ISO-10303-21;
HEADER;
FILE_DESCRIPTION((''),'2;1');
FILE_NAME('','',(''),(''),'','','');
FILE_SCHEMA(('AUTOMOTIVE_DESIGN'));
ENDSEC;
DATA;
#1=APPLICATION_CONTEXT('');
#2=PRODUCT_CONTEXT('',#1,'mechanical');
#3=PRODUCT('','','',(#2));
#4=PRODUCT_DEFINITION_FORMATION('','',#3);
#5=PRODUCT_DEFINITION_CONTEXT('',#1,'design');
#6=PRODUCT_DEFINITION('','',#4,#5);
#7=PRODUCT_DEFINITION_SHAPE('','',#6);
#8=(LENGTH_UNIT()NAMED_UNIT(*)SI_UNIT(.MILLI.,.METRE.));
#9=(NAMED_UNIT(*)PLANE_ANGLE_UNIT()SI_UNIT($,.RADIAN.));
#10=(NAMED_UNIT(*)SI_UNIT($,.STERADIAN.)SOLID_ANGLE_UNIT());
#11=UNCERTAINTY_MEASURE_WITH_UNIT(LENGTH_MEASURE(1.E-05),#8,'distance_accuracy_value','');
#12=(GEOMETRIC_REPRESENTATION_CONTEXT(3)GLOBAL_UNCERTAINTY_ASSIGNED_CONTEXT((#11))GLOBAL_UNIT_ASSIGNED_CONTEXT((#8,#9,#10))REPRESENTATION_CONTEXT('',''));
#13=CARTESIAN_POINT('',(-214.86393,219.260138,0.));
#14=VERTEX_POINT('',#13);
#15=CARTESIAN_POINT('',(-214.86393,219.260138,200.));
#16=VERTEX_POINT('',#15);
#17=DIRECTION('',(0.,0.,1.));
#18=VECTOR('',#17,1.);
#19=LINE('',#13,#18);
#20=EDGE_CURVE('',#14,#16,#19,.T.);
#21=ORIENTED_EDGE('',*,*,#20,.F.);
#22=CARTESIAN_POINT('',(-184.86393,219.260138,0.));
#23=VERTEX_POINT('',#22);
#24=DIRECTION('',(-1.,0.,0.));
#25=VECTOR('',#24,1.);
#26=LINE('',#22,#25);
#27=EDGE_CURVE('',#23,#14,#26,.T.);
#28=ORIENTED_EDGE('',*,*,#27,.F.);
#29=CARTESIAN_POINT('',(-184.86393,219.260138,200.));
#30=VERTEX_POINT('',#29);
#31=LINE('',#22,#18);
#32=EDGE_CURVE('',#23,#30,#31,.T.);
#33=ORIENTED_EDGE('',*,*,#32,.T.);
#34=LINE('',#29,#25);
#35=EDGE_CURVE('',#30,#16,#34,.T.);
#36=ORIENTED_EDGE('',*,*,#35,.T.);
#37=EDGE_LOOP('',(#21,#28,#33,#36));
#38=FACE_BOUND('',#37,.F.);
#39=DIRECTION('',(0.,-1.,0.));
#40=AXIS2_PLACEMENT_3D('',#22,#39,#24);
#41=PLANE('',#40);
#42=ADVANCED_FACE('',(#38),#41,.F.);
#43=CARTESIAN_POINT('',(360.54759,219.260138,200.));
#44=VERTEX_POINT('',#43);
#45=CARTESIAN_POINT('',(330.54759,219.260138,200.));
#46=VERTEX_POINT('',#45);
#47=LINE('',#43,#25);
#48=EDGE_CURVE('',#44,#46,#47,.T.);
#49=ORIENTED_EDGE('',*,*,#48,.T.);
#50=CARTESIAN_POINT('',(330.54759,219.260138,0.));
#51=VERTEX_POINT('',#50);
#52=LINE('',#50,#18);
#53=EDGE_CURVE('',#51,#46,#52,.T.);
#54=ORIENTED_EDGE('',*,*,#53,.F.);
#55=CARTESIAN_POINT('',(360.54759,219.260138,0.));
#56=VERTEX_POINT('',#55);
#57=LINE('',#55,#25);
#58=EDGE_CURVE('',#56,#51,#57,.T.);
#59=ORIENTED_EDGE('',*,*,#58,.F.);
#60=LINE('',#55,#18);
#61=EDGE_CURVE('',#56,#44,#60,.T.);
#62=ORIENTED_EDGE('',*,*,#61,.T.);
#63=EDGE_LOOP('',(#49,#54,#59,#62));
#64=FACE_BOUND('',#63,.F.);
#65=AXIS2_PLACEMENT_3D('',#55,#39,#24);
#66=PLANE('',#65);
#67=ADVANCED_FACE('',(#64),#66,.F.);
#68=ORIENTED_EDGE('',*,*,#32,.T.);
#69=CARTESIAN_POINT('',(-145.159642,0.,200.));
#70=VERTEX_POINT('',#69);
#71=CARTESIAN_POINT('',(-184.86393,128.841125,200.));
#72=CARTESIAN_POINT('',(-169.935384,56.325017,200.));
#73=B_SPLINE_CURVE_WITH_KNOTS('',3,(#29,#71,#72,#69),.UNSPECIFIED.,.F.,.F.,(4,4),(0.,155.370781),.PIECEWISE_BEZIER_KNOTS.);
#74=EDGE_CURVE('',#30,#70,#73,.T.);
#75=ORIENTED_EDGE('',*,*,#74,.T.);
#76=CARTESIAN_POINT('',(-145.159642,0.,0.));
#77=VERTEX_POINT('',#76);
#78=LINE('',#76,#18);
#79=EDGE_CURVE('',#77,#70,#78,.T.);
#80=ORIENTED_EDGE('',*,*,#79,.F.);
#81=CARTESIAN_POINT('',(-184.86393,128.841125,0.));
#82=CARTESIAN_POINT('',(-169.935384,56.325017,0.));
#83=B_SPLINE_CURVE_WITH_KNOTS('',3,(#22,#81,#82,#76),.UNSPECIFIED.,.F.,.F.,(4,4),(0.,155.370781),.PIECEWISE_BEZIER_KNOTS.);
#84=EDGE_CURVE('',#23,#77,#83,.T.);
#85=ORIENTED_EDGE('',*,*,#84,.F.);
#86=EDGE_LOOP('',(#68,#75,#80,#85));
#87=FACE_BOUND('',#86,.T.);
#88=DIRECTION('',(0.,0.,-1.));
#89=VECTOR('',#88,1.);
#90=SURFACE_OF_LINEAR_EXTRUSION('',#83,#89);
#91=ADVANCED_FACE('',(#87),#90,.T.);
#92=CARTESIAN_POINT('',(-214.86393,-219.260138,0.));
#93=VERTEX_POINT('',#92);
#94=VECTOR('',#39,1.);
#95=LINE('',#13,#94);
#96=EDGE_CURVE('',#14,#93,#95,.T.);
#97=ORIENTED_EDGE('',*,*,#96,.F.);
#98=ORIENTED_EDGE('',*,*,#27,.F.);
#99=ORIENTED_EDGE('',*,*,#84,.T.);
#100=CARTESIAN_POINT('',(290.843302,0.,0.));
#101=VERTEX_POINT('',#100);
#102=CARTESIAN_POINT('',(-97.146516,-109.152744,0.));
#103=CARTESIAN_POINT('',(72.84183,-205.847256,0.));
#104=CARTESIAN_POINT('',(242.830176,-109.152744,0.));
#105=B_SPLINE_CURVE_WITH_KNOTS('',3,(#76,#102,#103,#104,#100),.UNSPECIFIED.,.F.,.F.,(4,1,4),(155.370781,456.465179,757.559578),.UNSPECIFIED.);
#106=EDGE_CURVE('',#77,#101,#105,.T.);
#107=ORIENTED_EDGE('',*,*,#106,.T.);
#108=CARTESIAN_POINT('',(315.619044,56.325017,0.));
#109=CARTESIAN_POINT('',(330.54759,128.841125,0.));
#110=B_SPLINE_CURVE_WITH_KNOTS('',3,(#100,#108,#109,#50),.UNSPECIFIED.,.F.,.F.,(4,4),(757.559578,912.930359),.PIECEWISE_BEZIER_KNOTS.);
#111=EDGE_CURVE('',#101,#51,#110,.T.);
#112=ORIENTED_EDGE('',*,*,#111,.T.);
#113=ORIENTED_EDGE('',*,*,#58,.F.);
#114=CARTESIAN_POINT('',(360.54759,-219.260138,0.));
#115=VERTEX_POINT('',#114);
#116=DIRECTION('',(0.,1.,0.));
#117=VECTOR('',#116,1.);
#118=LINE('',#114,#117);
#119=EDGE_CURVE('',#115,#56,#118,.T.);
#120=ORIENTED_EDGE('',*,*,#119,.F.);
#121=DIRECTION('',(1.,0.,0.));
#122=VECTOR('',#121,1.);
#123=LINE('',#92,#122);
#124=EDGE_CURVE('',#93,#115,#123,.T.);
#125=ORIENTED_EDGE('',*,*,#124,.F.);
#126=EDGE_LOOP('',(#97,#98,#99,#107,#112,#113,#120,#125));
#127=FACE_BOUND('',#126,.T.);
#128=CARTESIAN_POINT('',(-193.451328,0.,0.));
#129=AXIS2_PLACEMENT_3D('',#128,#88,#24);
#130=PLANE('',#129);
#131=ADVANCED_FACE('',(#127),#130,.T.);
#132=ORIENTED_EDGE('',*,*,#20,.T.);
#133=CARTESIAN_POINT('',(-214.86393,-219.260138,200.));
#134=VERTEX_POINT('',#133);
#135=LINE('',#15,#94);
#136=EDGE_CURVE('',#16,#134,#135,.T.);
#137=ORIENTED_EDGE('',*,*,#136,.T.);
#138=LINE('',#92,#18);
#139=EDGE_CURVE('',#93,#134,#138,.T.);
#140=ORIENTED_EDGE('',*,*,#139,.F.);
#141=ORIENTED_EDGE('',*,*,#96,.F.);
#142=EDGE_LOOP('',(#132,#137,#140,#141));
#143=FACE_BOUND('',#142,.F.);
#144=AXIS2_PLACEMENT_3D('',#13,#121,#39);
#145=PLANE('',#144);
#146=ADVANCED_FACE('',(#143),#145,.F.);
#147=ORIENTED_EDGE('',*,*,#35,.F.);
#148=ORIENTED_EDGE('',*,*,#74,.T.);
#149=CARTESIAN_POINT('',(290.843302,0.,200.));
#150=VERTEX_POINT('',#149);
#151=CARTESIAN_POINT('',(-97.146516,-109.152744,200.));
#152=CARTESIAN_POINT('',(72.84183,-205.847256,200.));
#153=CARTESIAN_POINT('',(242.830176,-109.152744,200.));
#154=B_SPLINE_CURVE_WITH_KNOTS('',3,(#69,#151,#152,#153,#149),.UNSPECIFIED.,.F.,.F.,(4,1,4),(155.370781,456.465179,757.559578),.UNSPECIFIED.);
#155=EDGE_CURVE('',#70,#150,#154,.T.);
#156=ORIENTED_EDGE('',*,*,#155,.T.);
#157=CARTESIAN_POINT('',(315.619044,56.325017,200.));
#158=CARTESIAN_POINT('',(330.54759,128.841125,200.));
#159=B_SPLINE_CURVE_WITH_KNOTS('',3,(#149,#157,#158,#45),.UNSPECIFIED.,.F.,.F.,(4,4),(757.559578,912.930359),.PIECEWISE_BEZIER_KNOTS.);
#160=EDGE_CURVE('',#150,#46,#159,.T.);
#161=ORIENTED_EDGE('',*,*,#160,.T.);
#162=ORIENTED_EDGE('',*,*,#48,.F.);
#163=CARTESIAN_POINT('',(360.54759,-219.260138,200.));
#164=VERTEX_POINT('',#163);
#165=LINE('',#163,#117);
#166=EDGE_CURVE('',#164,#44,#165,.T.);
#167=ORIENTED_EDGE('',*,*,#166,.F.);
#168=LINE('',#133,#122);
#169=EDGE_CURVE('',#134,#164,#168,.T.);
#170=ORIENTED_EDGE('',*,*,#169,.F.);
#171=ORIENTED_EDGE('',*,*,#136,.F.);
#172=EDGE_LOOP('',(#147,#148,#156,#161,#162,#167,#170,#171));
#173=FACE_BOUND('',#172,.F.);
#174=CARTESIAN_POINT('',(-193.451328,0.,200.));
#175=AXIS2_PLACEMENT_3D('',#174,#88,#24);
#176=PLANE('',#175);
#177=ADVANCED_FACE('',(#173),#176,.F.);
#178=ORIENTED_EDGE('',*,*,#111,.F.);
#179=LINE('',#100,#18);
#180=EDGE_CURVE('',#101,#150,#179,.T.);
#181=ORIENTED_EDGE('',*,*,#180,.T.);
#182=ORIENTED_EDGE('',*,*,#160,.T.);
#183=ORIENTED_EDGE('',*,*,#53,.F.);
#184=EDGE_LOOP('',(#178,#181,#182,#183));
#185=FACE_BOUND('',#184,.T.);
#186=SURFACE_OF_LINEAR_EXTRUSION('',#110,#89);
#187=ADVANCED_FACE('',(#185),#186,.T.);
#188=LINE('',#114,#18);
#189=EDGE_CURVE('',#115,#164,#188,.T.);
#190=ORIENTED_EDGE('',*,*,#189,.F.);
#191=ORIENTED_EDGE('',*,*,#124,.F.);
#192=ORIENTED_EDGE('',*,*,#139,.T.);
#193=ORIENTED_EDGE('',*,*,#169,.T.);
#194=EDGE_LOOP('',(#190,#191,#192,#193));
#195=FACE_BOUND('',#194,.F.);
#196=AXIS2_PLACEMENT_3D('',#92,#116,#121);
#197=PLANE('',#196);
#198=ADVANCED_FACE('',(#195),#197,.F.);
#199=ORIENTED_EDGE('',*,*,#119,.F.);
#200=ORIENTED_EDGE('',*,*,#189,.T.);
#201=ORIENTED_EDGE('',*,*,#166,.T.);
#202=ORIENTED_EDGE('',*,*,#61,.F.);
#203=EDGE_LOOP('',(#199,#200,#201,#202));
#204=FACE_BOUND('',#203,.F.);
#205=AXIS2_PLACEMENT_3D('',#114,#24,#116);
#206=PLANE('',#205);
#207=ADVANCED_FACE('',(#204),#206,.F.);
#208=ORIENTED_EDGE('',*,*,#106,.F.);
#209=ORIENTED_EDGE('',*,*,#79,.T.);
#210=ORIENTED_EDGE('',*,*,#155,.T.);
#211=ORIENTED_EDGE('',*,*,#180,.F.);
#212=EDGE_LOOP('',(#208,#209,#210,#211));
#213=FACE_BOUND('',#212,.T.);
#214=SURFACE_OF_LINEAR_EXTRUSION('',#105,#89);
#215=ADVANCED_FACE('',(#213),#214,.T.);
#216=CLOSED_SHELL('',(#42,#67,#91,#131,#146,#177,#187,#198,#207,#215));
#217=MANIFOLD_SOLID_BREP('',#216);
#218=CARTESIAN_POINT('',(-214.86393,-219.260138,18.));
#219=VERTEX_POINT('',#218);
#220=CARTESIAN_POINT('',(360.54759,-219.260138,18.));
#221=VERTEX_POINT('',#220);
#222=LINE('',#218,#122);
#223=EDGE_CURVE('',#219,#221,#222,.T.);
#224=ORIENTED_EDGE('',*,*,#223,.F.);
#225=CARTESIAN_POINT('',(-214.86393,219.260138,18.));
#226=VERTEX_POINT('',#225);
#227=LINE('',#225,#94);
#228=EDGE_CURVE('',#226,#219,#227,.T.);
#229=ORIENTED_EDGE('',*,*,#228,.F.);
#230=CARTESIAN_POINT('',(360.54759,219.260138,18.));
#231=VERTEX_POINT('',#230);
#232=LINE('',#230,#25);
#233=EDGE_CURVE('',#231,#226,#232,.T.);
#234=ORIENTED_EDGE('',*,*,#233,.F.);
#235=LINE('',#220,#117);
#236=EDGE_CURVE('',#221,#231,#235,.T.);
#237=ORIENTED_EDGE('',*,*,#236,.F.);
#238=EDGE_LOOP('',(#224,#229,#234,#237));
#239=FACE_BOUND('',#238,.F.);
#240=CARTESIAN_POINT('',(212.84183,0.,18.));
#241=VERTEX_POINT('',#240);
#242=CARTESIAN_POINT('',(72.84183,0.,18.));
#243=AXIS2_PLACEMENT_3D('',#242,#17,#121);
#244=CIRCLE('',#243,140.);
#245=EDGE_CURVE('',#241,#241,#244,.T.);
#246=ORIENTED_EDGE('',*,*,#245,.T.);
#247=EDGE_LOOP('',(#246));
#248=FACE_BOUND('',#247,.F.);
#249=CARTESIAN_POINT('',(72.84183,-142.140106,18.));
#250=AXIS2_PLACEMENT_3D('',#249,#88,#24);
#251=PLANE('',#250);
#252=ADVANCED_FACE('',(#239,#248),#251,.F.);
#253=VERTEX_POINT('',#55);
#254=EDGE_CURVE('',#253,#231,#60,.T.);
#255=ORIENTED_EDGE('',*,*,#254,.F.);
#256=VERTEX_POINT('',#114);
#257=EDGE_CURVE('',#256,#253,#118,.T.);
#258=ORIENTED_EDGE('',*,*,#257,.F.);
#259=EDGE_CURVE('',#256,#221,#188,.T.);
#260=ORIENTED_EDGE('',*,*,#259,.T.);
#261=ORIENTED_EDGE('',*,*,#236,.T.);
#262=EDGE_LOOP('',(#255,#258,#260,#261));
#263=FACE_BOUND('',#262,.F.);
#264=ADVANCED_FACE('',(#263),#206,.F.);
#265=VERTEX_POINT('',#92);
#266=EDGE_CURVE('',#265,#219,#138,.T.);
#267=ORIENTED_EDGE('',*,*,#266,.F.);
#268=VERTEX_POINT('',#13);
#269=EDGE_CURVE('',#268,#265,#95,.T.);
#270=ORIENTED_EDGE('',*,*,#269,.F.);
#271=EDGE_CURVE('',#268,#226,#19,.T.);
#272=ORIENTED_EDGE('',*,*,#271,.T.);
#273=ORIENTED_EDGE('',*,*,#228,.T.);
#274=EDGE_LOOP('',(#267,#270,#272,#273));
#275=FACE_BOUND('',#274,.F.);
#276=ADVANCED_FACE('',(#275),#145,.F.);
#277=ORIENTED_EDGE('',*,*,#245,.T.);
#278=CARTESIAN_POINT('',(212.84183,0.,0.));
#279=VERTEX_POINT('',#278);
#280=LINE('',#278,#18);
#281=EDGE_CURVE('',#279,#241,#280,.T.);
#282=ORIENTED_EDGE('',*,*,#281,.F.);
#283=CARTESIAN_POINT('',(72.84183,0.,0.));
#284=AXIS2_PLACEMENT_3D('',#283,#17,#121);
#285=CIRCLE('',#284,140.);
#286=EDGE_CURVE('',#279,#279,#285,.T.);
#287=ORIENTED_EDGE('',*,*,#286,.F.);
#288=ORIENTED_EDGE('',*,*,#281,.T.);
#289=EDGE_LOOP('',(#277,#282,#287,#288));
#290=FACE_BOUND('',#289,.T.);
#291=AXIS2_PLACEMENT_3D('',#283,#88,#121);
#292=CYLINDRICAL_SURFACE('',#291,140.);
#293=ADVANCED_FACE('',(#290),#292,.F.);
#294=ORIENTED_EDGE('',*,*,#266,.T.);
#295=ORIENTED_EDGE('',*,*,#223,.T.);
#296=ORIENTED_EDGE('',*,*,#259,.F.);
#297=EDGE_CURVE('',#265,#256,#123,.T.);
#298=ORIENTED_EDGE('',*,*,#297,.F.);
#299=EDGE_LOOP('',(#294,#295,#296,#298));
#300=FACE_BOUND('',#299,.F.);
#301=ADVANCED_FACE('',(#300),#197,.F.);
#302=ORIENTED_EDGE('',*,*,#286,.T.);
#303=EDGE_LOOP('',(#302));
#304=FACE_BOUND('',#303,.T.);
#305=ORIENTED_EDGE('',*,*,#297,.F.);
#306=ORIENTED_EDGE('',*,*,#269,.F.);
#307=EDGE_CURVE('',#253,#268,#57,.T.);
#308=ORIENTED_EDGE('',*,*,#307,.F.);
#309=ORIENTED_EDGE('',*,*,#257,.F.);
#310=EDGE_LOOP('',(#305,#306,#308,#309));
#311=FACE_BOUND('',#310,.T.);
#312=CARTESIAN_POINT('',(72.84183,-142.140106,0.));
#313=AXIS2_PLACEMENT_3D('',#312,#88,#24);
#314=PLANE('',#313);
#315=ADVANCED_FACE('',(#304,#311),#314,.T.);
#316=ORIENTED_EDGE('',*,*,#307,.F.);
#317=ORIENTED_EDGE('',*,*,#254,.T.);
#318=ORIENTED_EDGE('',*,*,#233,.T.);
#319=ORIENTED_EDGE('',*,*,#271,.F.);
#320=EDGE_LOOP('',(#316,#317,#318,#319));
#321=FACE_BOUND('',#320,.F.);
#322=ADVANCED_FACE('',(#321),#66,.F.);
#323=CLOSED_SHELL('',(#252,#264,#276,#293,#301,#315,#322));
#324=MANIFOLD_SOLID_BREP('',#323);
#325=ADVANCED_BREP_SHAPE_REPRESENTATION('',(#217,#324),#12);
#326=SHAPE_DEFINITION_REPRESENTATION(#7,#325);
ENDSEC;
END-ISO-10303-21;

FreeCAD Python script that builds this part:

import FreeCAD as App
import Part
import Sketcher
from FreeCAD import Vector


def add_polygon(sketch, points):
    """Adds a closed chain of lines whose ends are joined by coincident constraints."""
    first, n = sketch.GeometryCount, len(points)
    for a, b in zip(points, points[1:] + points[:1]):
        sketch.addGeometry(Part.LineSegment(App.Vector(*a, 0), App.Vector(*b, 0)), False)
    for i in range(n):
        sketch.addConstraint(Sketcher.Constraint("Coincident", first + i, 2, first + (i + 1) % n, 1))

doc = App.newDocument("Part")
body = doc.addObject("PartDesign::Body", "Body")

# Sketch on XY plane
sketch1 = body.newObject("Sketcher::SketchObject", "Sketch")
sketch1.AttachmentSupport = (doc.getObject("XY_Plane"), [""])
sketch1.MapMode = "FlatFace"
sketch1.addGeometry([
    Part.BSplineCurve([Vector(-184.86393, 219.260138, 0), Vector(-184.86393, 128.841125, 0), Vector(-169.935384, 56.325017, 0), Vector(-145.159642, 0, 0)], [4, 4], [0, 155.370781], False, 3, [1, 1, 1, 1], False),  # 0
    Part.LineSegment(Vector(-184.86393, 219.260138, 0), Vector(-214.86393, 219.260138, 0)),  # 1
    Part.LineSegment(Vector(-214.86393, 219.260138, 0), Vector(-214.86393, -219.260138, 0)),  # 2
    Part.LineSegment(Vector(-214.86393, -219.260138, 0), Vector(360.54759, -219.260138, 0)),  # 3
    Part.LineSegment(Vector(360.54759, -219.260138, 0), Vector(360.54759, 219.260138, 0)),  # 4
    Part.LineSegment(Vector(360.54759, 219.260138, 0), Vector(330.54759, 219.260138, 0)),  # 5
    Part.BSplineCurve([Vector(290.843302, 0, 0), Vector(315.619044, 56.325017, 0), Vector(330.54759, 128.841125, 0), Vector(330.54759, 219.260138, 0)], [4, 4], [757.559578, 912.930359], False, 3, [1, 1, 1, 1], False),  # 6
    Part.BSplineCurve([Vector(-145.159642, 0, 0), Vector(-97.146516, -109.152744, 0), Vector(72.84183, -205.847256, 0), Vector(242.830176, -109.152744, 0), Vector(290.843302, 0, 0)], [4, 1, 4], [155.370781, 456.465179, 757.559578], False, 3, [1, 1, 1, 1, 1], False),  # 7
], False)
sketch1.addConstraint([
    Sketcher.Constraint("Block", 0),
    Sketcher.Constraint("Block", 6),
    Sketcher.Constraint("Block", 7),
    Sketcher.Constraint("Coincident", 0, 1, 1, 1),
    Sketcher.Constraint("Coincident", 1, 2, 2, 1),
    Sketcher.Constraint("Coincident", 2, 2, 3, 1),
    Sketcher.Constraint("Coincident", 3, 2, 4, 1),
    Sketcher.Constraint("Coincident", 4, 2, 5, 1),
    Sketcher.Constraint("Coincident", 5, 2, 6, 2),
    Sketcher.Constraint("Horizontal", 1),
    Sketcher.Constraint("Vertical", 2),
    Sketcher.Constraint("Horizontal", 3),
    Sketcher.Constraint("Vertical", 4),
    Sketcher.Constraint("Horizontal", 5),
    Sketcher.Constraint("Equal", 1, 5),
    Sketcher.Constraint("DistanceX", 1, 2, 1, 1, 30.0),
    Sketcher.Constraint("DistanceY", 2, 2, 2, 1, 438.520276),
])
pad1 = body.newObject("PartDesign::Pad", "Pad")
pad1.Profile = sketch1
pad1.Length = 200
body2 = doc.addObject("PartDesign::Body", "Body001")

# Sketch on XY plane
sketch2 = body2.newObject("Sketcher::SketchObject", "Sketch001")
sketch2.AttachmentSupport = (doc.getObject("XY_Plane001"), [""])
sketch2.MapMode = "FlatFace"
add_polygon(sketch2, [(360.54759, 219.260138), (-214.86393, 219.260138), (-214.86393, -219.260138), (360.54759, -219.260138)])  # lines 0-3
sketch2.addGeometry(Part.Circle(Vector(72.84183, 0, 0), Vector(0, 0, 1), 140), False)  # 4
sketch2.addConstraint([
    Sketcher.Constraint("Horizontal", 0),
    Sketcher.Constraint("Vertical", 1),
    Sketcher.Constraint("Horizontal", 2),
    Sketcher.Constraint("Vertical", 3),
    Sketcher.Constraint("PointOnObject", 4, 3, -1),
    Sketcher.Constraint("Diameter", 4, 280.0),
    Sketcher.Constraint("DistanceX", 0, 2, 0, 1, 575.41152),
    Sketcher.Constraint("DistanceY", 1, 2, 1, 1, 438.520276),
    Sketcher.Constraint("DistanceX", -1, 1, 4, 3, 72.84183),
    Sketcher.Constraint("DistanceX", 0, 2, -1, 1, 214.86393),
    Sketcher.Constraint("DistanceY", -1, 1, 0, 2, 219.260138),
])
pad2 = body2.newObject("PartDesign::Pad", "Pad001")
pad2.Profile = sketch2
pad2.Length = 18

doc.recompute()
